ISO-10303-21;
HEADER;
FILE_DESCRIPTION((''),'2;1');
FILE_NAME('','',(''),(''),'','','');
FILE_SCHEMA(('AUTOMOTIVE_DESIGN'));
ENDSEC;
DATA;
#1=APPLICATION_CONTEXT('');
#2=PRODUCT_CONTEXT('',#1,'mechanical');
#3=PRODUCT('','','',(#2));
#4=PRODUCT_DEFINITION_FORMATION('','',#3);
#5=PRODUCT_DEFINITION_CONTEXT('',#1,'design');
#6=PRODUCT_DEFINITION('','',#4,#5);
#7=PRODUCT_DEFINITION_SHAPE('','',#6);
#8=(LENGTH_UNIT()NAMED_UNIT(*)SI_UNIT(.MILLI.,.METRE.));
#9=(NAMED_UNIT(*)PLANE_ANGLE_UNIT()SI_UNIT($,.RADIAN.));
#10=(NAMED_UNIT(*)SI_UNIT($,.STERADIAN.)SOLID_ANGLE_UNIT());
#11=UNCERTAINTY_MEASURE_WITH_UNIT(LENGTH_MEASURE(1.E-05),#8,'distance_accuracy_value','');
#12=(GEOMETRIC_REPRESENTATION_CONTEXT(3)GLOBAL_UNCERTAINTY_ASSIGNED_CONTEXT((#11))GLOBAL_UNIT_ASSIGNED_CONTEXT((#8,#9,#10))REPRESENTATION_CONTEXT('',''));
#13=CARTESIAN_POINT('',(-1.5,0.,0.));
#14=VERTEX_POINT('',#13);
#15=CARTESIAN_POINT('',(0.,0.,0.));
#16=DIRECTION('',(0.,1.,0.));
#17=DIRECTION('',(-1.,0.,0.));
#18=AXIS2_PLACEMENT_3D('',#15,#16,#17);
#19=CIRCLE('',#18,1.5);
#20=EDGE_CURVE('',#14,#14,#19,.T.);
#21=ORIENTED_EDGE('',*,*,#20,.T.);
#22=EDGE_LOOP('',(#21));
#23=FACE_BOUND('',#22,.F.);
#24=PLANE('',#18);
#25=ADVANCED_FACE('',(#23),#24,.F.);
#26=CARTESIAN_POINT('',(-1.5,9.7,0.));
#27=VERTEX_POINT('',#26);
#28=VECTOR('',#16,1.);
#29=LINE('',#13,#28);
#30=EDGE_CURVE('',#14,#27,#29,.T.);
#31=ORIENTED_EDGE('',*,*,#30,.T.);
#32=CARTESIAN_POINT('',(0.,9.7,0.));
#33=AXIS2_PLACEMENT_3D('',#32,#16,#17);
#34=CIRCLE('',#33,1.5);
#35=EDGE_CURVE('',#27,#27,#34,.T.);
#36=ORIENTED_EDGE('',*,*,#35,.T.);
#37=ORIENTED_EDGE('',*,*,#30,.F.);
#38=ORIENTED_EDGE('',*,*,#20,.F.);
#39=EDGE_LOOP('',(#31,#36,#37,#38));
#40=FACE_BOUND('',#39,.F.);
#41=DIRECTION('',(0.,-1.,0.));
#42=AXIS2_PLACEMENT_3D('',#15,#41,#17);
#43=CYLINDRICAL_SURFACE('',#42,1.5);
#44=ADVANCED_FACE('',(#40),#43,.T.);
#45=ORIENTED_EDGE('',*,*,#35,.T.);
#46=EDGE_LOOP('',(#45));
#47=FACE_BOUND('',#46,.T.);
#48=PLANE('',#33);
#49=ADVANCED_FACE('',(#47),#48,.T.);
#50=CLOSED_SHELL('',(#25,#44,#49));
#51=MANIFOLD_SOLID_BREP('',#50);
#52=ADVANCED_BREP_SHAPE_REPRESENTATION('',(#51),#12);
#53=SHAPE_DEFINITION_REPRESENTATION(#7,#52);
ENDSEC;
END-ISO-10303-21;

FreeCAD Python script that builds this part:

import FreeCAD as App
import Part
import Sketcher

V = App.Vector

doc = App.newDocument("Part")
params = doc.addObject("Spreadsheet::Sheet", "Params")
for row, (alias, value) in enumerate([
    ("sketch1_diameter", "3 mm"),
    ("pad1_length", "9.7 mm"),
], start=1):
    params.set(f"A{row}", alias)
    params.set(f"B{row}", "=" + value)
    params.setAlias(f"B{row}", alias)

body = doc.addObject("PartDesign::Body", "Body")

sketch1 = doc.addObject("Sketcher::SketchObject", "Sketch")
body.addObject(sketch1)
sketch1.AttachmentSupport = (doc.XZ_Plane, [""])
sketch1.MapMode = "FlatFace"
sketch1.addGeometry(Part.Circle(V(0, 0, 0), V(0, 0, 1), 1.5), False)
sketch1.addConstraint([
    Sketcher.Constraint("Coincident", 0, 3, -1, 1),
    Sketcher.Constraint("Diameter", 0, 3.0),
])
sketch1.setExpression("Constraints[1]", "Params.sketch1_diameter")
pad1 = doc.addObject("PartDesign::Pad", "Pad")
body.addObject(pad1)
pad1.Profile = sketch1
pad1.setExpression("Length", "Params.pad1_length")
pad1.Reversed = True

doc.recompute()
